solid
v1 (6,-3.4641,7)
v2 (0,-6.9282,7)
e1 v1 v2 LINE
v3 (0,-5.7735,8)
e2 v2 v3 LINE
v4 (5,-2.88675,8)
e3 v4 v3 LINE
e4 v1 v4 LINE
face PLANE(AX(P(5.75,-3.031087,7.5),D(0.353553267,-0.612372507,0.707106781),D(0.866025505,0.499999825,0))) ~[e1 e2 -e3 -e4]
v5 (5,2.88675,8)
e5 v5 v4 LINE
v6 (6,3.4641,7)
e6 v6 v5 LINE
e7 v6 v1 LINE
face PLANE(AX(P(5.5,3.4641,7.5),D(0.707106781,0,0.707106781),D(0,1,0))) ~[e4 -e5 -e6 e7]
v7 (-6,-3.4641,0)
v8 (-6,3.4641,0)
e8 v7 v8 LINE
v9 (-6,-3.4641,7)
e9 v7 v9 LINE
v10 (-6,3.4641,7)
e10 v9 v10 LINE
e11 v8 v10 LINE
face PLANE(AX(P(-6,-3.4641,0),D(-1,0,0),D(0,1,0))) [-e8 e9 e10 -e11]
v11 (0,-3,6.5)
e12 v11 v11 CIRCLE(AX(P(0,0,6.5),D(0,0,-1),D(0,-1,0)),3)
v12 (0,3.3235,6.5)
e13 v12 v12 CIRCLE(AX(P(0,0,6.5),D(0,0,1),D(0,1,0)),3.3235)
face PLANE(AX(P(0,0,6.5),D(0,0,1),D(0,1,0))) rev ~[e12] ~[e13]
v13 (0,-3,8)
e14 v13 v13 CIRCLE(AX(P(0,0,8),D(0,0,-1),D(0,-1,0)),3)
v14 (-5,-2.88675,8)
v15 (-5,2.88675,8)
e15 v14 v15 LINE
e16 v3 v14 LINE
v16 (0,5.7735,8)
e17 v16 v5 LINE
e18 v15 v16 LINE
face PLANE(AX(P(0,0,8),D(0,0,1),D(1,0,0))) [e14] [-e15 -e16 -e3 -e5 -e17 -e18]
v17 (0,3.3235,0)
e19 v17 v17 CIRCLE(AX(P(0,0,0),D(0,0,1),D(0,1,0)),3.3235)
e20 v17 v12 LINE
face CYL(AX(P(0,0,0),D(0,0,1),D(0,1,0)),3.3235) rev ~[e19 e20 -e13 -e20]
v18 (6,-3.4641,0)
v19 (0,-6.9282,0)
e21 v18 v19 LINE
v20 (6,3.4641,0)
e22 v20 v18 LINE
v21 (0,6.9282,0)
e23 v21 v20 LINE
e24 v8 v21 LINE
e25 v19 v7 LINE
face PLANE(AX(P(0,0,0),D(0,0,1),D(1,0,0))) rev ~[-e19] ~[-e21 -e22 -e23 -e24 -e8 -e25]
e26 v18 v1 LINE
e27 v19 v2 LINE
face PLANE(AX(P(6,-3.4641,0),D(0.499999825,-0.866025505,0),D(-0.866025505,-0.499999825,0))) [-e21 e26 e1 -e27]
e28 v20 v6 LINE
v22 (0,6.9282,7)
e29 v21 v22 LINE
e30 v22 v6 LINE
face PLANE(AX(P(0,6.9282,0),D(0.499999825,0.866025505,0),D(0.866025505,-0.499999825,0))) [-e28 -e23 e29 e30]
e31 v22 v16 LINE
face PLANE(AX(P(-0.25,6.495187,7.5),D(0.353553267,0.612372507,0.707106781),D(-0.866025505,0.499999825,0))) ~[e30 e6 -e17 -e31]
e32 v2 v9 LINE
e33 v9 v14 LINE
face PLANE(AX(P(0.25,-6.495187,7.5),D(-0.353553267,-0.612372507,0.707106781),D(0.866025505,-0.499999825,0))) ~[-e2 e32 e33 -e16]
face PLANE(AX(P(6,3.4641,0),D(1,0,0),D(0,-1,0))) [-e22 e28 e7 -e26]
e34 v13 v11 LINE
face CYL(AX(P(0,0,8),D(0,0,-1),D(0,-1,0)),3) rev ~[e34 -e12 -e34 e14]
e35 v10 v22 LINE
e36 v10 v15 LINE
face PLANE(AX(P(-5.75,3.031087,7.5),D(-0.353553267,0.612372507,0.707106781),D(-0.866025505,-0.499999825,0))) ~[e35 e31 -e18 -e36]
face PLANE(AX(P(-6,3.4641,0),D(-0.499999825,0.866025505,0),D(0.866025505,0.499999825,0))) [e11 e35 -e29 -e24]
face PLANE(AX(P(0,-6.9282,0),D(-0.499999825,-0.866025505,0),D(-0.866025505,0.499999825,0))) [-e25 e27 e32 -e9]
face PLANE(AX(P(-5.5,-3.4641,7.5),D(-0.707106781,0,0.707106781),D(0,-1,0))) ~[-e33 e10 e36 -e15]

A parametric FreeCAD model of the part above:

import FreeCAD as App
import Part
import Sketcher

V = App.Vector
Q = App.Units.Quantity


def edges_at(feature, points):
    """Names of the edges that pass closest to the given points."""
    edges = feature.Shape.Edges
    near = lambda p: min(range(len(edges)), key=lambda i: edges[i].distToShape(Part.Vertex(*p))[0])
    return sorted({f"Edge{near(p) + 1}" for p in points})


def add_polygon(sketch, points):
    """Adds a closed chain of lines whose ends are joined by coincident constraints."""
    first, n = sketch.GeometryCount, len(points)
    for a, b in zip(points, points[1:] + points[:1]):
        sketch.addGeometry(Part.LineSegment(App.Vector(*a, 0), App.Vector(*b, 0)), False)
    for i in range(n):
        sketch.addConstraint(Sketcher.Constraint("Coincident", first + i, 2, first + (i + 1) % n, 1))

doc = App.newDocument("Part")
body = doc.addObject("PartDesign::Body", "Body")

# Sketch on XY plane
sketch1 = body.newObject("Sketcher::SketchObject", "Sketch")
sketch1.AttachmentSupport = (doc.getObject("XY_Plane"), [""])
sketch1.MapMode = "FlatFace"
add_polygon(sketch1, [(6, 3), (0, 7), (-6, 3), (-6, -3), (0, -7), (6, -3)])  # lines 0-5
sketch1.addConstraint([
    Sketcher.Constraint("Vertical", 2),
    Sketcher.Constraint("Vertical", 5),
    Sketcher.Constraint("Symmetric", 0, 2, 3, 2, -1, 1),
    Sketcher.Constraint("Symmetric", 1, 2, 4, 2, -1, 1),
    Sketcher.Constraint("PointOnObject", 0, 2, -2),
    Sketcher.Constraint("Parallel", 0, 3),
    Sketcher.Constraint("Horizontal", 2, 2, 4, 2),
    Sketcher.Constraint("DistanceX", 2, 2, 4, 2, Q("12 mm")),
    Sketcher.Constraint("Angle", 0, Q("150 deg")),
    Sketcher.Constraint("DistanceY", 2, 2, 2, 1, Q("6.9282 mm")),
])
pad1 = body.newObject("PartDesign::Pad", "Pad")
pad1.Profile = sketch1
pad1.Length = 8
doc.recompute()

chamfer = body.newObject("PartDesign::Chamfer", "Chamfer")
chamfer.Base = (pad1, edges_at(pad1, [
    (-3, 5.196, 8),
    (3, 5.196, 8),
    (6, 0, 8),
    (3, -5.196, 8),
    (-3, -5.196, 8),
    (-6, 0, 8),
]))
chamfer.Size = 1

# Sketch on XY plane
sketch2 = body.newObject("Sketcher::SketchObject", "Sketch001")
sketch2.AttachmentSupport = (doc.getObject("XY_Plane"), [""])
sketch2.MapMode = "FlatFace"
sketch2.AttachmentOffset = App.Placement(V(0, 0, 8), App.Rotation())
sketch2.addGeometry(Part.Circle(V(0, 0, 0), V(0, 0, 1), 3), False)
sketch2.addConstraint([
    Sketcher.Constraint("Coincident", 0, 3, -1, 1),
    Sketcher.Constraint("Diameter", 0, Q("6 mm")),
])
doc.recompute()
hole = body.newObject("PartDesign::Hole", "Hole")
hole.Profile = sketch2
hole.ThreadType = "None"
hole.Diameter = 6
hole.DepthType = "Dimension"
hole.Depth = 1.5
hole.DrillPoint = "Flat"

# Sketch on XY plane
sketch3 = body.newObject("Sketcher::SketchObject", "Sketch002")
sketch3.AttachmentSupport = (doc.getObject("XY_Plane"), [""])
sketch3.MapMode = "FlatFace"
sketch3.addGeometry(Part.Circle(V(0, 0, 0), V(0, 0, 1), 3.3), False)
sketch3.addConstraint([
    Sketcher.Constraint("Coincident", 0, 3, -1, 1),
    Sketcher.Constraint("Diameter", 0, Q("6.647 mm")),
])
doc.recompute()
hole2 = body.newObject("PartDesign::Hole", "Hole001")
hole2.Profile = sketch3
hole2.ThreadType = "None"
hole2.Diameter = 6.647
hole2.DepthType = "Dimension"
hole2.Depth = 6.5
hole2.DrillPoint = "Flat"
hole2.Reversed = True

doc.recompute()
